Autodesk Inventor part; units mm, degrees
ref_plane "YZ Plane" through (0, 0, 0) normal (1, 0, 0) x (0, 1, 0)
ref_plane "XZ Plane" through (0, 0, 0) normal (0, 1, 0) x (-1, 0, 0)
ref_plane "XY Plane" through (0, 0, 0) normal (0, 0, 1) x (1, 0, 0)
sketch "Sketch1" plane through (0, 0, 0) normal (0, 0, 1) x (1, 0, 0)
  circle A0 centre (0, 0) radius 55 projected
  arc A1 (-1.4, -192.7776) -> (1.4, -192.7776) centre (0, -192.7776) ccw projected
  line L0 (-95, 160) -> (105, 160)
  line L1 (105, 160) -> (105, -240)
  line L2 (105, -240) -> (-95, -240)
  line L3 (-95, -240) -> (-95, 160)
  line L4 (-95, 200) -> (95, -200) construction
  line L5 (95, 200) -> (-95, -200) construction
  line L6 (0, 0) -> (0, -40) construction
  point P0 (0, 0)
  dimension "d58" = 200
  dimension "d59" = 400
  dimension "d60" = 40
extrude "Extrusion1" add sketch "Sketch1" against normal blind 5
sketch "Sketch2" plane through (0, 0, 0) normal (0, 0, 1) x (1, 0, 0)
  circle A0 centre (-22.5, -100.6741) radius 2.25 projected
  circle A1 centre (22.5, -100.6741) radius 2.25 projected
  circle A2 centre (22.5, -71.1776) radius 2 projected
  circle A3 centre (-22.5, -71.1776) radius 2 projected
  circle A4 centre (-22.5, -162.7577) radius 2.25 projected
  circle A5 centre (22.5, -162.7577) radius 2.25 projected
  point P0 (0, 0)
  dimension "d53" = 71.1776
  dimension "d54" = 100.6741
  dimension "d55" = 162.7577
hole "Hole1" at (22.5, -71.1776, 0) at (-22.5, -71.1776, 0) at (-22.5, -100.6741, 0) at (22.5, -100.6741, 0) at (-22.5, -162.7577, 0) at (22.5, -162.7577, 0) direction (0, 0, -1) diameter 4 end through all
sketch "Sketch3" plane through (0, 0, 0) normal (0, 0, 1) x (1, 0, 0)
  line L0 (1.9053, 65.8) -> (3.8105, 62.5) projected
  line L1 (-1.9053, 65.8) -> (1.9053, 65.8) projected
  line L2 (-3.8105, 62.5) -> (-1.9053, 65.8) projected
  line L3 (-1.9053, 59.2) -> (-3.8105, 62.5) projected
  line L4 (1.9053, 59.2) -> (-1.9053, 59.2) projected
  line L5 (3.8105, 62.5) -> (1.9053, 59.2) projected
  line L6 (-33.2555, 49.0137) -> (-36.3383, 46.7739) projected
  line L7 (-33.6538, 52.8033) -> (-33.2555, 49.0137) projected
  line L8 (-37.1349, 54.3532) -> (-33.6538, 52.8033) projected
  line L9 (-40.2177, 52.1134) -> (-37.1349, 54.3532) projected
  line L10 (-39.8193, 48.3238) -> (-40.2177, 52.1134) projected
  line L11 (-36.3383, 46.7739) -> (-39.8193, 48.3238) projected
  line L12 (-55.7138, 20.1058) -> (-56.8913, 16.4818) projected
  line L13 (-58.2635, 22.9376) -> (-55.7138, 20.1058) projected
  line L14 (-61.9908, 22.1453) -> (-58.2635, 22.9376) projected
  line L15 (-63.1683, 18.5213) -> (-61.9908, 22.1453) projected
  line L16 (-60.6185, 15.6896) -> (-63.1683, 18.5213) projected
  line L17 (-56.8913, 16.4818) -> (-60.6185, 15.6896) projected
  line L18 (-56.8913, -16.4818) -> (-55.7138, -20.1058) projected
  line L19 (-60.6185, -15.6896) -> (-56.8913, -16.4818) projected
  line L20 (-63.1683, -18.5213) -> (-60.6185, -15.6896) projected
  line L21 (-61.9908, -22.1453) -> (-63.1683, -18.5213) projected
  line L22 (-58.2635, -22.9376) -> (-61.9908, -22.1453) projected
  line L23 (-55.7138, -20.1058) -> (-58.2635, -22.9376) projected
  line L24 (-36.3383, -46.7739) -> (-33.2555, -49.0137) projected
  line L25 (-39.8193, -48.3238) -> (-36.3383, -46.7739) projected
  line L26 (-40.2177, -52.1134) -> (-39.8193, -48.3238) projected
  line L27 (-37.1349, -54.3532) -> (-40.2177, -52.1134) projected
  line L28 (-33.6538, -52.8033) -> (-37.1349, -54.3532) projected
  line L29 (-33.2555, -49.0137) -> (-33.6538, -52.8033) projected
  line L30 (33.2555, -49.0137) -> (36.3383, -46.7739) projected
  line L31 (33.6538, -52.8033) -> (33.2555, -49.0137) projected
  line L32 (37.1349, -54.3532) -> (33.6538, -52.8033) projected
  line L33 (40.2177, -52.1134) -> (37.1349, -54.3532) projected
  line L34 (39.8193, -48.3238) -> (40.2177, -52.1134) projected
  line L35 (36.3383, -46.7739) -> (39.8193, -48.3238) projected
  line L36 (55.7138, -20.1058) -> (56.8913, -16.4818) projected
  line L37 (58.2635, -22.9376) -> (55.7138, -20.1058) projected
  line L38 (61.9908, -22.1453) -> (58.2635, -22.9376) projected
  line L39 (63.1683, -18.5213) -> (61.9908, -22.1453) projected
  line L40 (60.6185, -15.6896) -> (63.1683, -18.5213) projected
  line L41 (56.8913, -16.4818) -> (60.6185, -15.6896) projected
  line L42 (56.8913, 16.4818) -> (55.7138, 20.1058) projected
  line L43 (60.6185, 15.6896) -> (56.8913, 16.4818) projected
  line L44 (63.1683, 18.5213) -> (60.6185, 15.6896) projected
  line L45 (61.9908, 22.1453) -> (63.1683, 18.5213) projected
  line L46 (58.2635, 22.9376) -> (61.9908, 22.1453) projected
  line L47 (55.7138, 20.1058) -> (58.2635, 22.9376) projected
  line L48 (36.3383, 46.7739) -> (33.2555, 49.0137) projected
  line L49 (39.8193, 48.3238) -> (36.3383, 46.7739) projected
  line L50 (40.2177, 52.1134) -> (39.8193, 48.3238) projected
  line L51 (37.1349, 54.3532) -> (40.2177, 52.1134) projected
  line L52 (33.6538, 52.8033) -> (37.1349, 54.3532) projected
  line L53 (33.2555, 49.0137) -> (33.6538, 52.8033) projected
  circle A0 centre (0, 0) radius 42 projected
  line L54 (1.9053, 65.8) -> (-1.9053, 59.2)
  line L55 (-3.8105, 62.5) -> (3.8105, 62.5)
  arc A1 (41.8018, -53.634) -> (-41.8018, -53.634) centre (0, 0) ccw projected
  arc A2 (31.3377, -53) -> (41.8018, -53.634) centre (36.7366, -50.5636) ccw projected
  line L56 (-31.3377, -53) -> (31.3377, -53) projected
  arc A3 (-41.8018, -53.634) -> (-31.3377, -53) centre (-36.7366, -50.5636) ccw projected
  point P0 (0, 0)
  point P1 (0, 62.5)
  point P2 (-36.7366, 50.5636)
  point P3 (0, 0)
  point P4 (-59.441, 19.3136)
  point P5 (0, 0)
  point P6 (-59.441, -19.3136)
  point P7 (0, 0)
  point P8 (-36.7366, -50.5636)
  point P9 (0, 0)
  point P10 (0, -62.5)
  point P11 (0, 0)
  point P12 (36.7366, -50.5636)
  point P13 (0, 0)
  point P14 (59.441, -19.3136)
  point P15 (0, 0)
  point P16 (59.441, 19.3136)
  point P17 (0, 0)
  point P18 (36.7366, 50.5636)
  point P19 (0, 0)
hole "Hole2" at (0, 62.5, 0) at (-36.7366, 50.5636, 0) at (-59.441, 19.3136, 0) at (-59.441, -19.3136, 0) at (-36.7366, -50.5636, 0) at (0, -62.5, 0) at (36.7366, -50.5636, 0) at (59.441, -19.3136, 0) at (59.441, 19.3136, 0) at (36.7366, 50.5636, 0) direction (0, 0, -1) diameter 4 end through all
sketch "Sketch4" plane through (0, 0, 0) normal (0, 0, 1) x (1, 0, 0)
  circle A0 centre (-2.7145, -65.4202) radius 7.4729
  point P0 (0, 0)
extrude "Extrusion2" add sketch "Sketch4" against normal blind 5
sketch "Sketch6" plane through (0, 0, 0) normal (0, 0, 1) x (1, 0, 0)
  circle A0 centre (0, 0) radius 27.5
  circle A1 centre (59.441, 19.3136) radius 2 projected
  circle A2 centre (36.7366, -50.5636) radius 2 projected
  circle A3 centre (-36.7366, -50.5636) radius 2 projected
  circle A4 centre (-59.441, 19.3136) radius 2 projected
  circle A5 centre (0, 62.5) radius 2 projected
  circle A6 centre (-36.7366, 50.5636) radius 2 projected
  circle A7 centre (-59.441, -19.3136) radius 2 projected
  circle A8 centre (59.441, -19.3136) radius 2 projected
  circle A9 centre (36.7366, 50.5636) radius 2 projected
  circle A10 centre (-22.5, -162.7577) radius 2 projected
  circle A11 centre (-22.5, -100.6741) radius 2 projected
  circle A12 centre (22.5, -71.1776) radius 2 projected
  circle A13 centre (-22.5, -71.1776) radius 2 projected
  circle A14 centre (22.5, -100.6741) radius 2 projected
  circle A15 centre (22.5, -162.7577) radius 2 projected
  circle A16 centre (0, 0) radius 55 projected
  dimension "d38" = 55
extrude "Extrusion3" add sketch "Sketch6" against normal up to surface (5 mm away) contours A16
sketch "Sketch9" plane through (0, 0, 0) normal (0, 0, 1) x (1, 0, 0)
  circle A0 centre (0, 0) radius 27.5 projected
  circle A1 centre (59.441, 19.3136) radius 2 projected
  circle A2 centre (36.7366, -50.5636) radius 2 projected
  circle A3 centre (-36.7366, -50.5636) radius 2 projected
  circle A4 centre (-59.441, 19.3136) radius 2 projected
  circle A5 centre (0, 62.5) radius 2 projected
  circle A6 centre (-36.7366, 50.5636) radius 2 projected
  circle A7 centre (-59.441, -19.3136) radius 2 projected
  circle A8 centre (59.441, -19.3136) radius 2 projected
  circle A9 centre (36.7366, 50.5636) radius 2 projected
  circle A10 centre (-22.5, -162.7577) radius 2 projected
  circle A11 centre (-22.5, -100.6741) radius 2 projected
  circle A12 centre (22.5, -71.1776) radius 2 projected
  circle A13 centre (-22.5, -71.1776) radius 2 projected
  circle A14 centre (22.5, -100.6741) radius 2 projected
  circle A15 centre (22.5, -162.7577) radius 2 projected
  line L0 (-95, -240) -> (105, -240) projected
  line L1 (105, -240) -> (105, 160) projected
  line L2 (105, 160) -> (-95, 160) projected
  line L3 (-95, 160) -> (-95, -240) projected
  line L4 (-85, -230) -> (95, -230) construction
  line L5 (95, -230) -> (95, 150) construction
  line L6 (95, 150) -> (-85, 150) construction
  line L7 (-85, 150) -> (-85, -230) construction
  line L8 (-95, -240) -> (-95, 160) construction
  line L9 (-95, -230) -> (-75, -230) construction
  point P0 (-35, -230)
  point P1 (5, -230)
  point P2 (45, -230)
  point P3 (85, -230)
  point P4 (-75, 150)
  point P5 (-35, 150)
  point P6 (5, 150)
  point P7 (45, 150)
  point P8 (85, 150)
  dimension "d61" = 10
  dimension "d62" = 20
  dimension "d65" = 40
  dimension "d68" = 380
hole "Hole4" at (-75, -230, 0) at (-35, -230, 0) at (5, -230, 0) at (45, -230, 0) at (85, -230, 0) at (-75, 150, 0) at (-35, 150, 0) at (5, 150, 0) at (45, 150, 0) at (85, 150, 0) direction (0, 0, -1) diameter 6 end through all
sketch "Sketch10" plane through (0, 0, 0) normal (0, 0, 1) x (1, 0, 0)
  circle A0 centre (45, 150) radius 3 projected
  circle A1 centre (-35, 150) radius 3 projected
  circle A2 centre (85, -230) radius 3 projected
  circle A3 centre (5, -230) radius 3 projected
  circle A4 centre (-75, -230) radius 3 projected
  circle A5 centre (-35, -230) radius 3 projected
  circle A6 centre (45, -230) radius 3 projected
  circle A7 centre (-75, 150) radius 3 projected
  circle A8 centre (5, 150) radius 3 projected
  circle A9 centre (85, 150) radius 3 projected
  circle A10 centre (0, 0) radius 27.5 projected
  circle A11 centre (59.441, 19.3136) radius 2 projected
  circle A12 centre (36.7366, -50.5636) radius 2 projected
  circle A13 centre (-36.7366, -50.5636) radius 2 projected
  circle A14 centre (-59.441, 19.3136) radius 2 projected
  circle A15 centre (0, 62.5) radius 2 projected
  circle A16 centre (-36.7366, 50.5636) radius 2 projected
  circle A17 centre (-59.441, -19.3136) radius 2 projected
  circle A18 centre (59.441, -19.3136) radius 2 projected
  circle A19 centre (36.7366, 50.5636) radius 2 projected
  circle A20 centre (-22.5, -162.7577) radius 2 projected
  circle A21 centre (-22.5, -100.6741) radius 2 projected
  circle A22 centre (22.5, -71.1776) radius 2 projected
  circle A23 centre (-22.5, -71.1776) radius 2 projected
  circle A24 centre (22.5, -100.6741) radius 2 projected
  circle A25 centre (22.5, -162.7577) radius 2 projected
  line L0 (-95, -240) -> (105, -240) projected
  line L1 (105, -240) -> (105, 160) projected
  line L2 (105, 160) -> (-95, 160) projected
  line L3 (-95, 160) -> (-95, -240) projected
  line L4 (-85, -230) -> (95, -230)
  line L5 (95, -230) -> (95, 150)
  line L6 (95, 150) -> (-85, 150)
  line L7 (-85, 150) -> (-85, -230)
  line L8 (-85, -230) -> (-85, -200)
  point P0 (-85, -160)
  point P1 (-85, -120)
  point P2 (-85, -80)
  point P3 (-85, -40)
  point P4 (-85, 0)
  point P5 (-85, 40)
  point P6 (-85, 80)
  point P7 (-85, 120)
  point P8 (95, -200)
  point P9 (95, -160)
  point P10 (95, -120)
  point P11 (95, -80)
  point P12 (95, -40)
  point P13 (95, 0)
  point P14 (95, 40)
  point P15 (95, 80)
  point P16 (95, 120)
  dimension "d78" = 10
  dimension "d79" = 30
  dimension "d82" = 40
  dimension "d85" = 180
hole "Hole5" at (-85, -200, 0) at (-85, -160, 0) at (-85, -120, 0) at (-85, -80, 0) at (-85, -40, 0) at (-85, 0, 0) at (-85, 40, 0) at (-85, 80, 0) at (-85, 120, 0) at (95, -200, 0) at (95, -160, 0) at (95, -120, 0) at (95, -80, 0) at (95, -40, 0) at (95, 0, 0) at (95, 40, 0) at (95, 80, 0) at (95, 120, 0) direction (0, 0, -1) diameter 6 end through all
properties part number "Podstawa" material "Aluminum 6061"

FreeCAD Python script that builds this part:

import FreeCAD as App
import Part
import Sketcher

V = App.Vector
Q = App.Units.Quantity

doc = App.newDocument("Part")
params = doc.addObject("Spreadsheet::Sheet", "Params")
for row, (alias, value) in enumerate([
    ("sketch1_width", "200 mm"),
    ("sketch1_height", "400 mm"),
    ("sketch1_diameter", "110 mm"),
    ("pad1_length", "5 mm"),
    ("sketch2_diameter", "4 mm"),
    ("hole_diameter", "4 mm"),
    ("sketch3_diameter", "4 mm"),
    ("hole2_diameter", "4 mm"),
    ("pad2_length", "5 mm"),
    ("sketch5_diameter", "110 mm"),
    ("sketch5_diameter2", "55 mm"),
    ("pad3_length", "5 mm"),
    ("sketch6_diameter", "6 mm"),
    ("hole3_diameter", "6 mm"),
    ("sketch7_diameter", "6 mm"),
    ("hole4_diameter", "6 mm"),
], start=1):
    params.set(f"A{row}", alias)
    params.set(f"B{row}", "=" + value)
    params.setAlias(f"B{row}", alias)

body = doc.addObject("PartDesign::Body", "Body")

sketch1 = doc.addObject("Sketcher::SketchObject", "Sketch")
body.addObject(sketch1)
sketch1.AttachmentSupport = (doc.XY_Plane, [""])
sketch1.MapMode = "FlatFace"
sketch1.addGeometry([
    Part.LineSegment(V(105, 160, 0), V(-95, 160, 0)),
    Part.LineSegment(V(-95, 160, 0), V(-95, -240, 0)),
    Part.LineSegment(V(-95, -240, 0), V(105, -240, 0)),
    Part.LineSegment(V(105, -240, 0), V(105, 160, 0)),
    Part.Circle(V(0, 0, 0), V(0, 0, 1), 55),
], False)
sketch1.addConstraint([
    Sketcher.Constraint("Coincident", 0, 2, 1, 1),
    Sketcher.Constraint("Coincident", 1, 2, 2, 1),
    Sketcher.Constraint("Coincident", 2, 2, 3, 1),
    Sketcher.Constraint("Coincident", 3, 2, 0, 1),
    Sketcher.Constraint("Horizontal", 0),
    Sketcher.Constraint("Vertical", 1),
    Sketcher.Constraint("Horizontal", 2),
    Sketcher.Constraint("Vertical", 3),
    Sketcher.Constraint("Coincident", 4, 3, -1, 1),
    Sketcher.Constraint("DistanceX", 0, 2, 0, 1, Q("200 mm")),
    Sketcher.Constraint("DistanceY", 1, 2, 1, 1, Q("400 mm")),
    Sketcher.Constraint("Diameter", 4, Q("110 mm")),
    Sketcher.Constraint("DistanceX", 0, 2, -1, 1, Q("95 mm")),
    Sketcher.Constraint("DistanceY", -1, 1, 0, 2, Q("160 mm")),
])
sketch1.setExpression("Constraints[9]", "Params.sketch1_width")
sketch1.setExpression("Constraints[10]", "Params.sketch1_height")
sketch1.setExpression("Constraints[11]", "Params.sketch1_diameter")
pad1 = doc.addObject("PartDesign::Pad", "Pad")
body.addObject(pad1)
pad1.Profile = sketch1
pad1.setExpression("Length", "Params.pad1_length")
pad1.Reversed = True

sketch2 = doc.addObject("Sketcher::SketchObject", "Sketch001")
body.addObject(sketch2)
sketch2.AttachmentSupport = (doc.XY_Plane, [""])
sketch2.MapMode = "FlatFace"
sketch2.addGeometry([
    Part.Circle(V(22.5, -71.2, 0), V(0, 0, 1), 2),
    Part.Circle(V(-22.5, -71.2, 0), V(0, 0, 1), 2),
    Part.Circle(V(-22.5, -100.7, 0), V(0, 0, 1), 2),
    Part.Circle(V(22.5, -100.7, 0), V(0, 0, 1), 2),
    Part.Circle(V(-22.5, -162.8, 0), V(0, 0, 1), 2),
    Part.Circle(V(22.5, -162.8, 0), V(0, 0, 1), 2),
], False)
sketch2.addConstraint([
    Sketcher.Constraint("Equal", 0, 1),
    Sketcher.Constraint("Equal", 1, 2),
    Sketcher.Constraint("Equal", 2, 3),
    Sketcher.Constraint("Equal", 3, 4),
    Sketcher.Constraint("Equal", 4, 5),
    Sketcher.Constraint("Symmetric", 0, 3, 1, 3, -2),
    Sketcher.Constraint("Symmetric", 2, 3, 3, 3, -2),
    Sketcher.Constraint("Symmetric", 4, 3, 5, 3, -2),
    Sketcher.Constraint("Vertical", 1, 3, 2, 3),
    Sketcher.Constraint("Vertical", 2, 3, 4, 3),
    Sketcher.Constraint("Diameter", 0, Q("4 mm")),
    Sketcher.Constraint("DistanceX", 1, 3, 0, 3, Q("45 mm")),
    Sketcher.Constraint("DistanceY", 4, 3, 1, 3, Q("91.58 mm")),
    Sketcher.Constraint("DistanceY", 2, 3, -1, 1, Q("100.674 mm")),
    Sketcher.Constraint("DistanceY", 0, 3, -1, 1, Q("71.1776 mm")),
])
sketch2.setExpression("Constraints[10]", "Params.sketch2_diameter")
doc.recompute()
hole = doc.addObject("PartDesign::Hole", "Hole")
body.addObject(hole)
hole.Profile = sketch2
hole.ThreadType = "None"
hole.setExpression("Diameter", "Params.hole_diameter")
hole.DepthType = "ThroughAll"

sketch3 = doc.addObject("Sketcher::SketchObject", "Sketch002")
body.addObject(sketch3)
sketch3.AttachmentSupport = (doc.XY_Plane, [""])
sketch3.MapMode = "FlatFace"
sketch3.addGeometry([
    Part.Circle(V(0, 62.5, 0), V(0, 0, 1), 2),
    Part.Circle(V(-36.7, 50.6, 0), V(0, 0, 1), 2),
    Part.Circle(V(-59.4, 19.3, 0), V(0, 0, 1), 2),
    Part.Circle(V(-59.4, -19.3, 0), V(0, 0, 1), 2),
    Part.Circle(V(-36.7, -50.6, 0), V(0, 0, 1), 2),
    Part.Circle(V(0, -62.5, 0), V(0, 0, 1), 2),
    Part.Circle(V(36.7, -50.6, 0), V(0, 0, 1), 2),
    Part.Circle(V(59.4, -19.3, 0), V(0, 0, 1), 2),
    Part.Circle(V(59.4, 19.3, 0), V(0, 0, 1), 2),
    Part.Circle(V(36.7, 50.6, 0), V(0, 0, 1), 2),
], False)
sketch3.addConstraint([
    Sketcher.Constraint("Equal", 0, 1),
    Sketcher.Constraint("Equal", 1, 2),
    Sketcher.Constraint("Equal", 2, 3),
    Sketcher.Constraint("Equal", 3, 4),
    Sketcher.Constraint("Equal", 4, 5),
    Sketcher.Constraint("Equal", 5, 6),
    Sketcher.Constraint("Equal", 6, 7),
    Sketcher.Constraint("Equal", 7, 8),
    Sketcher.Constraint("Equal", 8, 9),
    Sketcher.Constraint("Symmetric", 0, 3, 5, 3, -1, 1),
    Sketcher.Constraint("Symmetric", 1, 3, 6, 3, -1, 1),
    Sketcher.Constraint("Symmetric", 2, 3, 7, 3, -1, 1),
    Sketcher.Constraint("Symmetric", 3, 3, 8, 3, -1, 1),
    Sketcher.Constraint("Symmetric", 4, 3, 9, 3, -1, 1),
    Sketcher.Constraint("Symmetric", 4, 3, 6, 3, -2),
    Sketcher.Constraint("Symmetric", 3, 3, 7, 3, -2),
    Sketcher.Constraint("PointOnObject", 0, 3, -2),
    Sketcher.Constraint("Diameter", 0, Q("4 mm")),
    Sketcher.Constraint("DistanceY", 5, 3, 0, 3, Q("125 mm")),
    Sketcher.Constraint("DistanceY", 2, 3, 1, 3, Q("31.25 mm")),
    Sketcher.Constraint("DistanceX", 2, 3, -1, 1, Q("59.441 mm")),
    Sketcher.Constraint("DistanceX", 1, 3, -1, 1, Q("36.7366 mm")),
    Sketcher.Constraint("DistanceY", -1, 1, 1, 3, Q("50.5636 mm")),
])
sketch3.setExpression("Constraints[17]", "Params.sketch3_diameter")
doc.recompute()
hole2 = doc.addObject("PartDesign::Hole", "Hole001")
body.addObject(hole2)
hole2.Profile = sketch3
hole2.ThreadType = "None"
hole2.setExpression("Diameter", "Params.hole2_diameter")
hole2.DepthType = "ThroughAll"

sketch4 = doc.addObject("Sketcher::SketchObject", "Sketch003")
body.addObject(sketch4)
sketch4.AttachmentSupport = (doc.XY_Plane, [""])
sketch4.MapMode = "FlatFace"
sketch4.addGeometry(Part.Circle(V(-3, -65, 0), V(0, 0, 1), 7), False)
sketch4.addConstraint([
    Sketcher.Constraint("Diameter", 0, Q("14.9458 mm")),
    Sketcher.Constraint("DistanceX", 0, 3, -1, 1, Q("2.7145 mm")),
    Sketcher.Constraint("DistanceY", 0, 3, -1, 1, Q("65.4202 mm")),
])
pad2 = doc.addObject("PartDesign::Pad", "Pad001")
body.addObject(pad2)
pad2.Profile = sketch4
pad2.setExpression("Length", "Params.pad2_length")
pad2.Reversed = True

sketch5 = doc.addObject("Sketcher::SketchObject", "Sketch004")
body.addObject(sketch5)
sketch5.AttachmentSupport = (doc.XY_Plane, [""])
sketch5.MapMode = "FlatFace"
sketch5.addGeometry([
    Part.Circle(V(0, 0, 0), V(0, 0, 1), 55),
    Part.Circle(V(0, 0, 0), V(0, 0, 1), 28),
], False)
sketch5.addConstraint([
    Sketcher.Constraint("Coincident", 0, 3, -1, 1),
    Sketcher.Constraint("Coincident", 1, 3, -1, 1),
    Sketcher.Constraint("Diameter", 0, Q("110 mm")),
    Sketcher.Constraint("Diameter", 1, Q("55 mm")),
])
sketch5.setExpression("Constraints[2]", "Params.sketch5_diameter")
sketch5.setExpression("Constraints[3]", "Params.sketch5_diameter2")
pad3 = doc.addObject("PartDesign::Pad", "Pad002")
body.addObject(pad3)
pad3.Profile = sketch5
pad3.setExpression("Length", "Params.pad3_length")
pad3.Reversed = True

sketch6 = doc.addObject("Sketcher::SketchObject", "Sketch005")
body.addObject(sketch6)
sketch6.AttachmentSupport = (doc.XY_Plane, [""])
sketch6.MapMode = "FlatFace"
sketch6.addGeometry([
    Part.Circle(V(-75, -230, 0), V(0, 0, 1), 3),
    Part.Circle(V(-35, -230, 0), V(0, 0, 1), 3),
    Part.Circle(V(5, -230, 0), V(0, 0, 1), 3),
    Part.Circle(V(45, -230, 0), V(0, 0, 1), 3),
    Part.Circle(V(85, -230, 0), V(0, 0, 1), 3),
    Part.Circle(V(-75, 150, 0), V(0, 0, 1), 3),
    Part.Circle(V(-35, 150, 0), V(0, 0, 1), 3),
    Part.Circle(V(5, 150, 0), V(0, 0, 1), 3),
    Part.Circle(V(45, 150, 0), V(0, 0, 1), 3),
    Part.Circle(V(85, 150, 0), V(0, 0, 1), 3),
], False)
sketch6.addConstraint([
    Sketcher.Constraint("Equal", 0, 1),
    Sketcher.Constraint("Equal", 1, 2),
    Sketcher.Constraint("Equal", 2, 3),
    Sketcher.Constraint("Equal", 3, 4),
    Sketcher.Constraint("Equal", 4, 5),
    Sketcher.Constraint("Equal", 5, 6),
    Sketcher.Constraint("Equal", 6, 7),
    Sketcher.Constraint("Equal", 7, 8),
    Sketcher.Constraint("Equal", 8, 9),
    Sketcher.Constraint("Horizontal", 0, 3, 1, 3),
    Sketcher.Constraint("Horizontal", 1, 3, 2, 3),
    Sketcher.Constraint("Horizontal", 2, 3, 3, 3),
    Sketcher.Constraint("Horizontal", 3, 3, 4, 3),
    Sketcher.Constraint("Horizontal", 5, 3, 6, 3),
    Sketcher.Constraint("Horizontal", 6, 3, 7, 3),
    Sketcher.Constraint("Horizontal", 7, 3, 8, 3),
    Sketcher.Constraint("Horizontal", 8, 3, 9, 3),
    Sketcher.Constraint("Vertical", 0, 3, 5, 3),
    Sketcher.Constraint("Vertical", 1, 3, 6, 3),
    Sketcher.Constraint("Vertical", 2, 3, 7, 3),
    Sketcher.Constraint("Vertical", 3, 3, 8, 3),
    Sketcher.Constraint("Vertical", 4, 3, 9, 3),
    Sketcher.Constraint("Diameter", 0, Q("6 mm")),
    Sketcher.Constraint("DistanceX", 0, 3, -1, 1, Q("75 mm")),
    Sketcher.Constraint("DistanceY", 0, 3, -1, 1, Q("230 mm")),
    Sketcher.Constraint("DistanceX", 1, 3, -1, 1, Q("35 mm")),
    Sketcher.Constraint("DistanceX", -1, 1, 2, 3, Q("5 mm")),
    Sketcher.Constraint("DistanceX", -1, 1, 3, 3, Q("45 mm")),
    Sketcher.Constraint("DistanceX", -1, 1, 4, 3, Q("85 mm")),
    Sketcher.Constraint("DistanceY", -1, 1, 5, 3, Q("150 mm")),
])
sketch6.setExpression("Constraints[22]", "Params.sketch6_diameter")
doc.recompute()
hole3 = doc.addObject("PartDesign::Hole", "Hole002")
body.addObject(hole3)
hole3.Profile = sketch6
hole3.ThreadType = "None"
hole3.setExpression("Diameter", "Params.hole3_diameter")
hole3.DepthType = "ThroughAll"

sketch7 = doc.addObject("Sketcher::SketchObject", "Sketch006")
body.addObject(sketch7)
sketch7.AttachmentSupport = (doc.XY_Plane, [""])
sketch7.MapMode = "FlatFace"
sketch7.addGeometry([
    Part.Circle(V(-85, -200, 0), V(0, 0, 1), 3),
    Part.Circle(V(-85, -160, 0), V(0, 0, 1), 3),
    Part.Circle(V(-85, -120, 0), V(0, 0, 1), 3),
    Part.Circle(V(-85, -80, 0), V(0, 0, 1), 3),
    Part.Circle(V(-85, -40, 0), V(0, 0, 1), 3),
    Part.Circle(V(-85, 0, 0), V(0, 0, 1), 3),
    Part.Circle(V(-85, 40, 0), V(0, 0, 1), 3),
    Part.Circle(V(-85, 80, 0), V(0, 0, 1), 3),
    Part.Circle(V(-85, 120, 0), V(0, 0, 1), 3),
    Part.Circle(V(95, -200, 0), V(0, 0, 1), 3),
    Part.Circle(V(95, -160, 0), V(0, 0, 1), 3),
    Part.Circle(V(95, -120, 0), V(0, 0, 1), 3),
    Part.Circle(V(95, -80, 0), V(0, 0, 1), 3),
    Part.Circle(V(95, -40, 0), V(0, 0, 1), 3),
    Part.Circle(V(95, 0, 0), V(0, 0, 1), 3),
    Part.Circle(V(95, 40, 0), V(0, 0, 1), 3),
    Part.Circle(V(95, 80, 0), V(0, 0, 1), 3),
    Part.Circle(V(95, 120, 0), V(0, 0, 1), 3),
], False)
sketch7.addConstraint([
    Sketcher.Constraint("Equal", 0, 1),
    Sketcher.Constraint("Equal", 1, 2),
    Sketcher.Constraint("Equal", 2, 3),
    Sketcher.Constraint("Equal", 3, 4),
    Sketcher.Constraint("Equal", 4, 5),
    Sketcher.Constraint("Equal", 5, 6),
    Sketcher.Constraint("Equal", 6, 7),
    Sketcher.Constraint("Equal", 7, 8),
    Sketcher.Constraint("Equal", 8, 9),
    Sketcher.Constraint("Equal", 9, 10),
    Sketcher.Constraint("Equal", 10, 11),
    Sketcher.Constraint("Equal", 11, 12),
    Sketcher.Constraint("Equal", 12, 13),
    Sketcher.Constraint("Equal", 13, 14),
    Sketcher.Constraint("Equal", 14, 15),
    Sketcher.Constraint("Equal", 15, 16),
    Sketcher.Constraint("Equal", 16, 17),
    Sketcher.Constraint("Symmetric", 4, 3, 6, 3, -1),
    Sketcher.Constraint("Symmetric", 3, 3, 7, 3, -1),
    Sketcher.Constraint("Symmetric", 2, 3, 8, 3, -1),
    Sketcher.Constraint("Symmetric", 13, 3, 15, 3, -1),
    Sketcher.Constraint("Symmetric", 12, 3, 16, 3, -1),
    Sketcher.Constraint("Symmetric", 11, 3, 17, 3, -1),
    Sketcher.Constraint("PointOnObject", 5, 3, -1),
    Sketcher.Constraint("PointOnObject", 14, 3, -1),
    Sketcher.Constraint("Horizontal", 0, 3, 9, 3),
    Sketcher.Constraint("Horizontal", 1, 3, 10, 3),
    Sketcher.Constraint("Horizontal", 2, 3, 11, 3),
    Sketcher.Constraint("Horizontal", 3, 3, 12, 3),
    Sketcher.Constraint("Horizontal", 4, 3, 13, 3),
    Sketcher.Constraint("Vertical", 0, 3, 1, 3),
    Sketcher.Constraint("Vertical", 1, 3, 2, 3),
    Sketcher.Constraint("Vertical", 2, 3, 3, 3),
    Sketcher.Constraint("Vertical", 3, 3, 4, 3),
    Sketcher.Constraint("Vertical", 4, 3, 5, 3),
    Sketcher.Constraint("Vertical", 9, 3, 10, 3),
    Sketcher.Constraint("Vertical", 10, 3, 11, 3),
    Sketcher.Constraint("Vertical", 11, 3, 12, 3),
    Sketcher.Constraint("Vertical", 12, 3, 13, 3),
    Sketcher.Constraint("Vertical", 13, 3, 14, 3),
    Sketcher.Constraint("Diameter", 0, Q("6 mm")),
    Sketcher.Constraint("DistanceX", 0, 3, -1, 1, Q("85 mm")),
    Sketcher.Constraint("DistanceY", 0, 3, -1, 1, Q("200 mm")),
    Sketcher.Constraint("DistanceY", 1, 3, -1, 1, Q("160 mm")),
    Sketcher.Constraint("DistanceY", 2, 3, -1, 1, Q("120 mm")),
    Sketcher.Constraint("DistanceY", 3, 3, -1, 1, Q("80 mm")),
    Sketcher.Constraint("DistanceY", 4, 3, -1, 1, Q("40 mm")),
    Sketcher.Constraint("DistanceX", -1, 1, 9, 3, Q("95 mm")),
])
sketch7.setExpression("Constraints[40]", "Params.sketch7_diameter")
doc.recompute()
hole4 = doc.addObject("PartDesign::Hole", "Hole003")
body.addObject(hole4)
hole4.Profile = sketch7
hole4.ThreadType = "None"
hole4.setExpression("Diameter", "Params.hole4_diameter")
hole4.DepthType = "ThroughAll"

doc.recompute()
